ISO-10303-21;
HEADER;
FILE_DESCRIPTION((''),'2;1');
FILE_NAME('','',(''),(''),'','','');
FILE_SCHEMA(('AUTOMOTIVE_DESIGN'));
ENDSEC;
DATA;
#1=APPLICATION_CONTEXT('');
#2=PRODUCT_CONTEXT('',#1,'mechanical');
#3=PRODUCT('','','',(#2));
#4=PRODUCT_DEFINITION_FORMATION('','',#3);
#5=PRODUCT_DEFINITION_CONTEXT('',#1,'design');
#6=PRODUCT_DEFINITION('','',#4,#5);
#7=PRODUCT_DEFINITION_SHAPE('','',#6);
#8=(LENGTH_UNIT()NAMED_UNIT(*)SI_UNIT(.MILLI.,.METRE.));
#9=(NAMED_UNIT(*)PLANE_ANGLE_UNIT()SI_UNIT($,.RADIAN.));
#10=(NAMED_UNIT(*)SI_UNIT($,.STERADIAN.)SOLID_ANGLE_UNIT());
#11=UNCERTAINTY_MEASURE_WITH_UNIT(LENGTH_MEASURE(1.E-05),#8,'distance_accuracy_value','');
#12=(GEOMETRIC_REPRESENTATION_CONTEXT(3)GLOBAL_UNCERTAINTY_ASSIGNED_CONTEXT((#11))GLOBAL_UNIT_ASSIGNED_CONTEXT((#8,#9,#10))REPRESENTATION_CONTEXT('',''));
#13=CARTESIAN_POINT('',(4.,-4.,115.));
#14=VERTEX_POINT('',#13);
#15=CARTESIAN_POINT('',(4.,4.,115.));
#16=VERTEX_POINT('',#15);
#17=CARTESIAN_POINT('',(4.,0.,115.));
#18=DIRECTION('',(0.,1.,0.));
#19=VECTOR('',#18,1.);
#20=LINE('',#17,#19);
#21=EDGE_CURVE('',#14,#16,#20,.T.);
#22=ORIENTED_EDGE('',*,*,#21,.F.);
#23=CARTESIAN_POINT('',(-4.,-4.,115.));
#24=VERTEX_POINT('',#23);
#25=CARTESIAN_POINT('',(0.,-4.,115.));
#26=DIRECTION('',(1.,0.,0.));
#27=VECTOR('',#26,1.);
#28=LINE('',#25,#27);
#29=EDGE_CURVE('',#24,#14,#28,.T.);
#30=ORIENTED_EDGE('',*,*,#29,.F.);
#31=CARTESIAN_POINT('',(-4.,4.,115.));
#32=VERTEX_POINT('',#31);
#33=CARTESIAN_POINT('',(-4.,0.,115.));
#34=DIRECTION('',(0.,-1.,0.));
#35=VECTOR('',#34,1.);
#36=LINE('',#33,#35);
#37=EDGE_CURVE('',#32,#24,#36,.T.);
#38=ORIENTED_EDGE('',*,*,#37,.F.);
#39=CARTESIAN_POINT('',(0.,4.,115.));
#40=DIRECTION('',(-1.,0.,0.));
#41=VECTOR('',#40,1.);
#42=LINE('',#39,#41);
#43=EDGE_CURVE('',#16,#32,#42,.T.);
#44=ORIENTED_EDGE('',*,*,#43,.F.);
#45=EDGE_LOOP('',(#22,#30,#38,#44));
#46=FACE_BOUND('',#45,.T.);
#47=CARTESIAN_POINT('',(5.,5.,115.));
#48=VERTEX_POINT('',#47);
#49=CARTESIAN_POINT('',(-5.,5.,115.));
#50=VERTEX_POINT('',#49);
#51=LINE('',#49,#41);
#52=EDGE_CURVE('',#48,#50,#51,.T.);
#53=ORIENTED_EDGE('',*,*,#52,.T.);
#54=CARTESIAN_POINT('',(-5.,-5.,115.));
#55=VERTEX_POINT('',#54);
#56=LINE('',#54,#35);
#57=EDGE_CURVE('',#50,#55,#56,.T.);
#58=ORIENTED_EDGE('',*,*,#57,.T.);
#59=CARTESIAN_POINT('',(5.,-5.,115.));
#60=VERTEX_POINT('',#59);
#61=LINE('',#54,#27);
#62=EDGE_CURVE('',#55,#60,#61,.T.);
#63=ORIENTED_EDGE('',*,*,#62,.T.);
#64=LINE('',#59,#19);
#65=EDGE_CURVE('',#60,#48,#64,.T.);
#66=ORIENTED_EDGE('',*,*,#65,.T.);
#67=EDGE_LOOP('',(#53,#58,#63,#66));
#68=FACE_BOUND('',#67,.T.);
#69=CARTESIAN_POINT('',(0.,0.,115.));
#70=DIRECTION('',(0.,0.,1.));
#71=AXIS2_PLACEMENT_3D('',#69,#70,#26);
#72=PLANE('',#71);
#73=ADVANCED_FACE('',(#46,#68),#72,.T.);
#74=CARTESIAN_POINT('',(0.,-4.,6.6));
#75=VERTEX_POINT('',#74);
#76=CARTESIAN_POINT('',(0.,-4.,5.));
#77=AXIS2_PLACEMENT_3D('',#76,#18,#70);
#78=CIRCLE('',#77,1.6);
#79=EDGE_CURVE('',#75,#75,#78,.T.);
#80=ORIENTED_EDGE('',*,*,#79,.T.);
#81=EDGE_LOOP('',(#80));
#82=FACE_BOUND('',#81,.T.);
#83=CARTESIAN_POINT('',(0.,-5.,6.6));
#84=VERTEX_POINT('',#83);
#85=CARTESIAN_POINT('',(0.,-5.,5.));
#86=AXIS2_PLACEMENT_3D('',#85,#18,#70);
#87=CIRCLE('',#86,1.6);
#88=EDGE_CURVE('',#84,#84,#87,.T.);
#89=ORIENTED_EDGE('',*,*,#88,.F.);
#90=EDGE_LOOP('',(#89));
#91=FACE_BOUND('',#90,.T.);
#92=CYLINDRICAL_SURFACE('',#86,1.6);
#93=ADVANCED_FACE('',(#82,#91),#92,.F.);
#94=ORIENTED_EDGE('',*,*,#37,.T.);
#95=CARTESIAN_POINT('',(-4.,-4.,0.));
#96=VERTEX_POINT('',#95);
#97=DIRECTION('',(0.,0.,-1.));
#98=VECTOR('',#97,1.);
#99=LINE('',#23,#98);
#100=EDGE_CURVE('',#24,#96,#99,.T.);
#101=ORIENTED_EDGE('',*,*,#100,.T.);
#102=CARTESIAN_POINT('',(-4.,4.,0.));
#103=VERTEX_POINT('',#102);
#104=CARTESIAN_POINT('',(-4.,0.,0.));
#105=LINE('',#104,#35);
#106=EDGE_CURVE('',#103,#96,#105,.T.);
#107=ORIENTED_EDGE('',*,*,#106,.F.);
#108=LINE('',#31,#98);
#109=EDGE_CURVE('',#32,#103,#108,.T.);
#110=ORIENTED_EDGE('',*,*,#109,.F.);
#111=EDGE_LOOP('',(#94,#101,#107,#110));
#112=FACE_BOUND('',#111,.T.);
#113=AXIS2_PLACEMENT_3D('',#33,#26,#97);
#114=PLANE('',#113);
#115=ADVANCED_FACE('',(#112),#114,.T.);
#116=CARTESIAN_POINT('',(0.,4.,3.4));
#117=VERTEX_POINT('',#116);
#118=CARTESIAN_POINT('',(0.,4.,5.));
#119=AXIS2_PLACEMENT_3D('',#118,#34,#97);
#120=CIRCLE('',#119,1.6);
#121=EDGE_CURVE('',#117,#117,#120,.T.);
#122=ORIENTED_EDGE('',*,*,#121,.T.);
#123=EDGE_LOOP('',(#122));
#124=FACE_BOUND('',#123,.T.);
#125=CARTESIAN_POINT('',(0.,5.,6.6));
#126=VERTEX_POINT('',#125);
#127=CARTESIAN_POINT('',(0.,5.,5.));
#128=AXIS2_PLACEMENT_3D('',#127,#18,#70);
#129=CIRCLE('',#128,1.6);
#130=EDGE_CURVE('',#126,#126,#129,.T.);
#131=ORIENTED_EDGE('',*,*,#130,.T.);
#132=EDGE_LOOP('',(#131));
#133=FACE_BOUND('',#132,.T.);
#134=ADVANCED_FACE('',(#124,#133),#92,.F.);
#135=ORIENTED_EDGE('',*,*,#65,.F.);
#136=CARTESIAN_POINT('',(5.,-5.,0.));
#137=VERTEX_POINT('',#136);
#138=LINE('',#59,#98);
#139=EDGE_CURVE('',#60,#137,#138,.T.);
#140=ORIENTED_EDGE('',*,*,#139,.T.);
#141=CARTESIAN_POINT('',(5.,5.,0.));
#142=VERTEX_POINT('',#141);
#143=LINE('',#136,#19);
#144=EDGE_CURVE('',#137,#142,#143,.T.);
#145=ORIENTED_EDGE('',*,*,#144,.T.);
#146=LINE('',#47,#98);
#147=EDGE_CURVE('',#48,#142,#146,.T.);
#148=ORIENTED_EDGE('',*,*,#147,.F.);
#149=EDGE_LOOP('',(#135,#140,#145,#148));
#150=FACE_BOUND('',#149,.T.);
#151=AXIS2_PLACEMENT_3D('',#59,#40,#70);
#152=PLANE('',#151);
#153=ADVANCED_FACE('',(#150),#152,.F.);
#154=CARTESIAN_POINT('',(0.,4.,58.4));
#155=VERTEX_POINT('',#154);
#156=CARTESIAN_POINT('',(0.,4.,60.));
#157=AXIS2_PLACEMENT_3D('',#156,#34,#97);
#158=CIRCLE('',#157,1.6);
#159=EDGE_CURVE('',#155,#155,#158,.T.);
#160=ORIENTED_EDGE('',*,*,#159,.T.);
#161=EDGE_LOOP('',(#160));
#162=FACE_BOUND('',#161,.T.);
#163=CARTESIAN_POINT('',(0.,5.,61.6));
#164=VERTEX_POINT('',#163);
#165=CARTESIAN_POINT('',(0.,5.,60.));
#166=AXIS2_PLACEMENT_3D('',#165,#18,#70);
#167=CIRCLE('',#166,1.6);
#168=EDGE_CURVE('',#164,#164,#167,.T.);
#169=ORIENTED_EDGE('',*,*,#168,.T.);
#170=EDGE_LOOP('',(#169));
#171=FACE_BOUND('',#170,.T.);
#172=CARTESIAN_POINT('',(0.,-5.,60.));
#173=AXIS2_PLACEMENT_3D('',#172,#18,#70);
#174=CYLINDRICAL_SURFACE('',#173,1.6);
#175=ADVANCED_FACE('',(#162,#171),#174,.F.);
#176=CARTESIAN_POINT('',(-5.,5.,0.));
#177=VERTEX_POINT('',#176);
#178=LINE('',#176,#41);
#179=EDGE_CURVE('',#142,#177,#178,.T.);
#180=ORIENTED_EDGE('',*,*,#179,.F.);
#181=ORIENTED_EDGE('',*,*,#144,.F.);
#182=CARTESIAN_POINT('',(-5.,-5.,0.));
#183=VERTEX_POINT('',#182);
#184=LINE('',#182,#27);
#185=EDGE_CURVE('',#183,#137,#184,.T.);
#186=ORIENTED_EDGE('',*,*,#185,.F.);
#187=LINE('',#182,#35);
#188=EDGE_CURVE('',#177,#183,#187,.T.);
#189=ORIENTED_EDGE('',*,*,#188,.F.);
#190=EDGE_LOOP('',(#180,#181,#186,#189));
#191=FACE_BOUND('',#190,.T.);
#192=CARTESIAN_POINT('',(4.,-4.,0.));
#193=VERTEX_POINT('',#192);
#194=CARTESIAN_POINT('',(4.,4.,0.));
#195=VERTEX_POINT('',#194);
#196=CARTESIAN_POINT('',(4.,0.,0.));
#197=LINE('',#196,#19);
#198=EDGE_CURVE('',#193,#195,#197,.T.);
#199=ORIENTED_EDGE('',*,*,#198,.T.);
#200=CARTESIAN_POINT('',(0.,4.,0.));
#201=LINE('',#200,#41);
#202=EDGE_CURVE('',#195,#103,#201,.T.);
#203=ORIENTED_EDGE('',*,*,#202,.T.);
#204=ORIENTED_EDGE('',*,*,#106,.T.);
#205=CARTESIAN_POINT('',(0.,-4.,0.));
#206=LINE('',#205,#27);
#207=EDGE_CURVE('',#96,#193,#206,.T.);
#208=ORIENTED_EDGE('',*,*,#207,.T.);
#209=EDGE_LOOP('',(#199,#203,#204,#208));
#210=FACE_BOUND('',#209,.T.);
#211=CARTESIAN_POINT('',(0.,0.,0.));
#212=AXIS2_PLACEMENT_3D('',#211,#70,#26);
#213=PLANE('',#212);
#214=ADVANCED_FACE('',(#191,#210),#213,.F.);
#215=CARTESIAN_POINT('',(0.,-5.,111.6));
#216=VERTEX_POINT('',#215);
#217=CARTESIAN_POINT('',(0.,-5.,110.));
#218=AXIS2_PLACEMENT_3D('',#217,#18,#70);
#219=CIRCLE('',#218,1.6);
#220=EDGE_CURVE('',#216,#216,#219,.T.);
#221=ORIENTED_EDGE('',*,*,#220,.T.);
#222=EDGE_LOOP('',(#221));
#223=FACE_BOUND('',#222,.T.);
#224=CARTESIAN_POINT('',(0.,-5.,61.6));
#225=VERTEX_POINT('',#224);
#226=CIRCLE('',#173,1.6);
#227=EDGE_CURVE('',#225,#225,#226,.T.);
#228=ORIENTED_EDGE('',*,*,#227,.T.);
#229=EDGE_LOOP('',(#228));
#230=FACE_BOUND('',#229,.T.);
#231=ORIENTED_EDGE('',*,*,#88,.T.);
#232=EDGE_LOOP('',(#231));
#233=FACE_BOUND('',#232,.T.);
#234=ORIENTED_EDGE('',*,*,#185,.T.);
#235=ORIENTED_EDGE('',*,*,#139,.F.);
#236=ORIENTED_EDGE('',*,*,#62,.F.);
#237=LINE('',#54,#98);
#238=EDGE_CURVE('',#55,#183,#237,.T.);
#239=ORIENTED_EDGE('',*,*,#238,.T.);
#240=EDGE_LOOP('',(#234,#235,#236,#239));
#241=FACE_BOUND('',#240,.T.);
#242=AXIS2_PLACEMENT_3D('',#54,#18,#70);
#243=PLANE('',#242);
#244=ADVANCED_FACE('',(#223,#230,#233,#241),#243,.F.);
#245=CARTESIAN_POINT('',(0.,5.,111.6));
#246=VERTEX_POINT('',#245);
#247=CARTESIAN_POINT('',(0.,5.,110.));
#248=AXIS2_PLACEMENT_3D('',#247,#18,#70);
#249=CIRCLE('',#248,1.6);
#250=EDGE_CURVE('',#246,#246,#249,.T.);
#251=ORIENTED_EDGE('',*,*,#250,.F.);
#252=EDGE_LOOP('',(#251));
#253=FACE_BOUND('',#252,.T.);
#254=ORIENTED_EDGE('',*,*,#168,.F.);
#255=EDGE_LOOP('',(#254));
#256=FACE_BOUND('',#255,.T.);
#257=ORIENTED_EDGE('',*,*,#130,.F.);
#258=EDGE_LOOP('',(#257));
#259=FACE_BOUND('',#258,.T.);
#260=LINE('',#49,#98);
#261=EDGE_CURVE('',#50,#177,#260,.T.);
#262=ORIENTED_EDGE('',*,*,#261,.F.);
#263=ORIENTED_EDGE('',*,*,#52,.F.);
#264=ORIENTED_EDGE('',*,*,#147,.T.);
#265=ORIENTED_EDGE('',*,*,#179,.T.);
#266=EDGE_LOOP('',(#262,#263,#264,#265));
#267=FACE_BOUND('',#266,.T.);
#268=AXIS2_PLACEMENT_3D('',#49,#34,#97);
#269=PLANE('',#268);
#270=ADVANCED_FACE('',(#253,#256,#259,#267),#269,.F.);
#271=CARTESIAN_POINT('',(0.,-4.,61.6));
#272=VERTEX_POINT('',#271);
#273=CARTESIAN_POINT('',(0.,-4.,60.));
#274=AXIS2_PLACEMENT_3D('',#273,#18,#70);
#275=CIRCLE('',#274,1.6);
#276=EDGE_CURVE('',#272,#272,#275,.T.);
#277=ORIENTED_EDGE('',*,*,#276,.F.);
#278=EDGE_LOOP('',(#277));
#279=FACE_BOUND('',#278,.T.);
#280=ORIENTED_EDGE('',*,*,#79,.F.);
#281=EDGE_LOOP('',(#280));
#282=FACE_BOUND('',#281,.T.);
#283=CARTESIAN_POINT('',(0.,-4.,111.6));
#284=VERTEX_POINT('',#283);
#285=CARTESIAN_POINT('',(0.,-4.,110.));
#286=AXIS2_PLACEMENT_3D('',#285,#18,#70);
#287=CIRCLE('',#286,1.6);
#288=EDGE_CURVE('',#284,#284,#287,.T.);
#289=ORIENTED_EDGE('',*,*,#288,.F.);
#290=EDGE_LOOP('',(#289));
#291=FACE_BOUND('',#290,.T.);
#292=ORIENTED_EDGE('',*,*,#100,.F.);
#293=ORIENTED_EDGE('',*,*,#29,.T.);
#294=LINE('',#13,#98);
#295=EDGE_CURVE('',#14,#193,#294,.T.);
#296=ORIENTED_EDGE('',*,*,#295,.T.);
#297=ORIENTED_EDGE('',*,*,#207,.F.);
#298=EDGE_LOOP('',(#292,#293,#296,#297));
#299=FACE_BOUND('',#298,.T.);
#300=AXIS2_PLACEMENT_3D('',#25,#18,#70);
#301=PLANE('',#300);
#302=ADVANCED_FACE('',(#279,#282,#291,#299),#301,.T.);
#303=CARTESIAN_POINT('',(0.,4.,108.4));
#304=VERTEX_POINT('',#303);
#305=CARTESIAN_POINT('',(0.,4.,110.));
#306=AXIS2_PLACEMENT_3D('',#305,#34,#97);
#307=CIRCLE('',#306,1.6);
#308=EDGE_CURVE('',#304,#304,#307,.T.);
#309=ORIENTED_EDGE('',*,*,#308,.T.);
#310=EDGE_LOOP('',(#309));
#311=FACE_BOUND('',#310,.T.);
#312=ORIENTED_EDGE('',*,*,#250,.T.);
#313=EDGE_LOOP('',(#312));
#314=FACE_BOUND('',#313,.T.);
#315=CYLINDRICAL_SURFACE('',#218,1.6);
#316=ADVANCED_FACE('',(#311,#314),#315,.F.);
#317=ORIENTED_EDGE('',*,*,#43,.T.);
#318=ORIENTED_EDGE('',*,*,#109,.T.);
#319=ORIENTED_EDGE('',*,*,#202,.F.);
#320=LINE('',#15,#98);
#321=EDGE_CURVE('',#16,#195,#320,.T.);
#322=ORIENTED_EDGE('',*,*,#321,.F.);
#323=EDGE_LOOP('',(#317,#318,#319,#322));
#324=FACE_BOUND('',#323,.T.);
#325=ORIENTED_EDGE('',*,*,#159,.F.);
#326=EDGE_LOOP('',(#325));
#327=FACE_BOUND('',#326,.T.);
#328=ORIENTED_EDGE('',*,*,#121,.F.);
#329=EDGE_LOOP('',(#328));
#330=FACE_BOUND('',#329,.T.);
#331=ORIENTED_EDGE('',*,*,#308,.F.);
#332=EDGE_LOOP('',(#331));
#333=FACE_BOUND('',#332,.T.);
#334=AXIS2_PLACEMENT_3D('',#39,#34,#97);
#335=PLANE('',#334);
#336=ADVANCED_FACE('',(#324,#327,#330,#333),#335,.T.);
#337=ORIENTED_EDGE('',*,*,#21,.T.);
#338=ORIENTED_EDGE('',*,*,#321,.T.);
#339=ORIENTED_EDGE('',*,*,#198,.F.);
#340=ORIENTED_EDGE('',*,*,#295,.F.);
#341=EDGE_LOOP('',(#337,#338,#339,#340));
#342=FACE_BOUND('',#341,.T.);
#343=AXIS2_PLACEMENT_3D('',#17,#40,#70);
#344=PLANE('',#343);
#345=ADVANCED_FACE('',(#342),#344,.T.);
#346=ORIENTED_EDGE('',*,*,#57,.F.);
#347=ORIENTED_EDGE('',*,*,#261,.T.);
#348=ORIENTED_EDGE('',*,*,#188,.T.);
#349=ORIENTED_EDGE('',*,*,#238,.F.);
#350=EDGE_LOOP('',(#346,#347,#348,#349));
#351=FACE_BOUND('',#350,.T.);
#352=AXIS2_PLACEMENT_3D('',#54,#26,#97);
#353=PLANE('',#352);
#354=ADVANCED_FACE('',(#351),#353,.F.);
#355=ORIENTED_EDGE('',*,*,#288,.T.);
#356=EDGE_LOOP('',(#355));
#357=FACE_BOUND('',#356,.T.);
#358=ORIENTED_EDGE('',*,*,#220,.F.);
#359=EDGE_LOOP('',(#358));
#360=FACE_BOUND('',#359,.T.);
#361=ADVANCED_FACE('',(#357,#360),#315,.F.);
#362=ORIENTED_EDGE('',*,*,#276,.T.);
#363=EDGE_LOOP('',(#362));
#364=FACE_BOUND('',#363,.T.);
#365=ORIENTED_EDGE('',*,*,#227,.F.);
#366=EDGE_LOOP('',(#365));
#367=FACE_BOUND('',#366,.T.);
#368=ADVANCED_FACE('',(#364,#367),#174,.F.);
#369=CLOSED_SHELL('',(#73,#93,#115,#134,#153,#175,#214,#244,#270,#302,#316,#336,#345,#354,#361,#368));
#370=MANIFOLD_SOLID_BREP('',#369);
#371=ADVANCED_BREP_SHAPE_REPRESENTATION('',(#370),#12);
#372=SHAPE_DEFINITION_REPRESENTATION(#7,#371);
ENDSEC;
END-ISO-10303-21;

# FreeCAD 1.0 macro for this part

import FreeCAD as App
import Part
import Sketcher
Q = App.Units.Quantity

doc = App.newDocument("Part")
body = doc.addObject("PartDesign::Body", "Body")

# Sketch on XY plane
sketch1 = body.newObject("Sketcher::SketchObject", "Sketch")
sketch1.AttachmentSupport = (doc.getObject("XY_Plane"), [""])
sketch1.MapMode = "FlatFace"
sketch1.addGeometry(Part.LineSegment(App.Vector(-5, 5, 0), App.Vector(-5, -5, 0)), False)
sketch1.addGeometry(Part.LineSegment(App.Vector(-5, -5, 0), App.Vector(5, -5, 0)), False)
sketch1.addGeometry(Part.LineSegment(App.Vector(5, -5, 0), App.Vector(5, 5, 0)), False)
sketch1.addGeometry(Part.LineSegment(App.Vector(5, 5, 0), App.Vector(-5, 5, 0)), False)
sketch1.addGeometry(Part.LineSegment(App.Vector(4, -4, 0), App.Vector(-4, -4, 0)), False)
sketch1.addGeometry(Part.LineSegment(App.Vector(-4, -4, 0), App.Vector(-4, 4, 0)), False)
sketch1.addGeometry(Part.LineSegment(App.Vector(-4, 4, 0), App.Vector(4, 4, 0)), False)
sketch1.addGeometry(Part.LineSegment(App.Vector(4, 4, 0), App.Vector(4, -4, 0)), False)
sketch1.addConstraint(Sketcher.Constraint("Coincident", 0, 2, 1, 1))
sketch1.addConstraint(Sketcher.Constraint("Coincident", 1, 2, 2, 1))
sketch1.addConstraint(Sketcher.Constraint("Coincident", 2, 2, 3, 1))
sketch1.addConstraint(Sketcher.Constraint("Coincident", 3, 2, 0, 1))
sketch1.addConstraint(Sketcher.Constraint("Coincident", 4, 2, 5, 1))
sketch1.addConstraint(Sketcher.Constraint("Coincident", 5, 2, 6, 1))
sketch1.addConstraint(Sketcher.Constraint("Coincident", 6, 2, 7, 1))
sketch1.addConstraint(Sketcher.Constraint("Coincident", 7, 2, 4, 1))
sketch1.addConstraint(Sketcher.Constraint("Vertical", 0))
sketch1.addConstraint(Sketcher.Constraint("Horizontal", 1))
sketch1.addConstraint(Sketcher.Constraint("Vertical", 2))
sketch1.addConstraint(Sketcher.Constraint("Horizontal", 3))
sketch1.addConstraint(Sketcher.Constraint("Horizontal", 4))
sketch1.addConstraint(Sketcher.Constraint("Vertical", 5))
sketch1.addConstraint(Sketcher.Constraint("Horizontal", 6))
sketch1.addConstraint(Sketcher.Constraint("Vertical", 7))
sketch1.addConstraint(Sketcher.Constraint("Symmetric", 0, 2, 2, 2, -1, 1))
sketch1.addConstraint(Sketcher.Constraint("Symmetric", 4, 2, 6, 2, -1, 1))
sketch1.addConstraint(Sketcher.Constraint("Equal", 3, 0))
sketch1.addConstraint(Sketcher.Constraint("Equal", 6, 5))
sketch1.addConstraint(Sketcher.Constraint("DistanceX", 1, 1, 1, 2, Q("10 mm")))
sketch1.addConstraint(Sketcher.Constraint("DistanceX", 4, 2, 4, 1, Q("8 mm")))
pad1 = body.newObject("PartDesign::Pad", "Pad")
pad1.Profile = sketch1
pad1.Length = 115

# Sketch on XZ plane
sketch2 = body.newObject("Sketcher::SketchObject", "Sketch001")
sketch2.AttachmentSupport = (doc.getObject("XZ_Plane"), [""])
sketch2.MapMode = "FlatFace"
sketch2.AttachmentOffset = App.Placement(App.Vector(0, 0, -5), App.Rotation())
sketch2.addGeometry(Part.Circle(App.Vector(0, 5, 0), App.Vector(0, 0, 1), 1.6), False)
sketch2.addGeometry(Part.Circle(App.Vector(0, 60, 0), App.Vector(0, 0, 1), 1.6), False)
sketch2.addGeometry(Part.Circle(App.Vector(0, 110, 0), App.Vector(0, 0, 1), 1.6), False)
sketch2.addConstraint(Sketcher.Constraint("Equal", 0, 1))
sketch2.addConstraint(Sketcher.Constraint("Equal", 1, 2))
sketch2.addConstraint(Sketcher.Constraint("PointOnObject", 0, 3, -2))
sketch2.addConstraint(Sketcher.Constraint("PointOnObject", 1, 3, -2))
sketch2.addConstraint(Sketcher.Constraint("PointOnObject", 2, 3, -2))
sketch2.addConstraint(Sketcher.Constraint("Diameter", 0, Q("3.2 mm")))
sketch2.addConstraint(Sketcher.Constraint("DistanceY", -1, 1, 0, 3, Q("5 mm")))
sketch2.addConstraint(Sketcher.Constraint("DistanceY", -1, 1, 1, 3, Q("60 mm")))
sketch2.addConstraint(Sketcher.Constraint("DistanceY", -1, 1, 2, 3, Q("110 mm")))
pocket1 = body.newObject("PartDesign::Pocket", "Pocket")
pocket1.Profile = sketch2
pocket1.Type = "ThroughAll"
pocket1.Reversed = True

doc.recompute()
